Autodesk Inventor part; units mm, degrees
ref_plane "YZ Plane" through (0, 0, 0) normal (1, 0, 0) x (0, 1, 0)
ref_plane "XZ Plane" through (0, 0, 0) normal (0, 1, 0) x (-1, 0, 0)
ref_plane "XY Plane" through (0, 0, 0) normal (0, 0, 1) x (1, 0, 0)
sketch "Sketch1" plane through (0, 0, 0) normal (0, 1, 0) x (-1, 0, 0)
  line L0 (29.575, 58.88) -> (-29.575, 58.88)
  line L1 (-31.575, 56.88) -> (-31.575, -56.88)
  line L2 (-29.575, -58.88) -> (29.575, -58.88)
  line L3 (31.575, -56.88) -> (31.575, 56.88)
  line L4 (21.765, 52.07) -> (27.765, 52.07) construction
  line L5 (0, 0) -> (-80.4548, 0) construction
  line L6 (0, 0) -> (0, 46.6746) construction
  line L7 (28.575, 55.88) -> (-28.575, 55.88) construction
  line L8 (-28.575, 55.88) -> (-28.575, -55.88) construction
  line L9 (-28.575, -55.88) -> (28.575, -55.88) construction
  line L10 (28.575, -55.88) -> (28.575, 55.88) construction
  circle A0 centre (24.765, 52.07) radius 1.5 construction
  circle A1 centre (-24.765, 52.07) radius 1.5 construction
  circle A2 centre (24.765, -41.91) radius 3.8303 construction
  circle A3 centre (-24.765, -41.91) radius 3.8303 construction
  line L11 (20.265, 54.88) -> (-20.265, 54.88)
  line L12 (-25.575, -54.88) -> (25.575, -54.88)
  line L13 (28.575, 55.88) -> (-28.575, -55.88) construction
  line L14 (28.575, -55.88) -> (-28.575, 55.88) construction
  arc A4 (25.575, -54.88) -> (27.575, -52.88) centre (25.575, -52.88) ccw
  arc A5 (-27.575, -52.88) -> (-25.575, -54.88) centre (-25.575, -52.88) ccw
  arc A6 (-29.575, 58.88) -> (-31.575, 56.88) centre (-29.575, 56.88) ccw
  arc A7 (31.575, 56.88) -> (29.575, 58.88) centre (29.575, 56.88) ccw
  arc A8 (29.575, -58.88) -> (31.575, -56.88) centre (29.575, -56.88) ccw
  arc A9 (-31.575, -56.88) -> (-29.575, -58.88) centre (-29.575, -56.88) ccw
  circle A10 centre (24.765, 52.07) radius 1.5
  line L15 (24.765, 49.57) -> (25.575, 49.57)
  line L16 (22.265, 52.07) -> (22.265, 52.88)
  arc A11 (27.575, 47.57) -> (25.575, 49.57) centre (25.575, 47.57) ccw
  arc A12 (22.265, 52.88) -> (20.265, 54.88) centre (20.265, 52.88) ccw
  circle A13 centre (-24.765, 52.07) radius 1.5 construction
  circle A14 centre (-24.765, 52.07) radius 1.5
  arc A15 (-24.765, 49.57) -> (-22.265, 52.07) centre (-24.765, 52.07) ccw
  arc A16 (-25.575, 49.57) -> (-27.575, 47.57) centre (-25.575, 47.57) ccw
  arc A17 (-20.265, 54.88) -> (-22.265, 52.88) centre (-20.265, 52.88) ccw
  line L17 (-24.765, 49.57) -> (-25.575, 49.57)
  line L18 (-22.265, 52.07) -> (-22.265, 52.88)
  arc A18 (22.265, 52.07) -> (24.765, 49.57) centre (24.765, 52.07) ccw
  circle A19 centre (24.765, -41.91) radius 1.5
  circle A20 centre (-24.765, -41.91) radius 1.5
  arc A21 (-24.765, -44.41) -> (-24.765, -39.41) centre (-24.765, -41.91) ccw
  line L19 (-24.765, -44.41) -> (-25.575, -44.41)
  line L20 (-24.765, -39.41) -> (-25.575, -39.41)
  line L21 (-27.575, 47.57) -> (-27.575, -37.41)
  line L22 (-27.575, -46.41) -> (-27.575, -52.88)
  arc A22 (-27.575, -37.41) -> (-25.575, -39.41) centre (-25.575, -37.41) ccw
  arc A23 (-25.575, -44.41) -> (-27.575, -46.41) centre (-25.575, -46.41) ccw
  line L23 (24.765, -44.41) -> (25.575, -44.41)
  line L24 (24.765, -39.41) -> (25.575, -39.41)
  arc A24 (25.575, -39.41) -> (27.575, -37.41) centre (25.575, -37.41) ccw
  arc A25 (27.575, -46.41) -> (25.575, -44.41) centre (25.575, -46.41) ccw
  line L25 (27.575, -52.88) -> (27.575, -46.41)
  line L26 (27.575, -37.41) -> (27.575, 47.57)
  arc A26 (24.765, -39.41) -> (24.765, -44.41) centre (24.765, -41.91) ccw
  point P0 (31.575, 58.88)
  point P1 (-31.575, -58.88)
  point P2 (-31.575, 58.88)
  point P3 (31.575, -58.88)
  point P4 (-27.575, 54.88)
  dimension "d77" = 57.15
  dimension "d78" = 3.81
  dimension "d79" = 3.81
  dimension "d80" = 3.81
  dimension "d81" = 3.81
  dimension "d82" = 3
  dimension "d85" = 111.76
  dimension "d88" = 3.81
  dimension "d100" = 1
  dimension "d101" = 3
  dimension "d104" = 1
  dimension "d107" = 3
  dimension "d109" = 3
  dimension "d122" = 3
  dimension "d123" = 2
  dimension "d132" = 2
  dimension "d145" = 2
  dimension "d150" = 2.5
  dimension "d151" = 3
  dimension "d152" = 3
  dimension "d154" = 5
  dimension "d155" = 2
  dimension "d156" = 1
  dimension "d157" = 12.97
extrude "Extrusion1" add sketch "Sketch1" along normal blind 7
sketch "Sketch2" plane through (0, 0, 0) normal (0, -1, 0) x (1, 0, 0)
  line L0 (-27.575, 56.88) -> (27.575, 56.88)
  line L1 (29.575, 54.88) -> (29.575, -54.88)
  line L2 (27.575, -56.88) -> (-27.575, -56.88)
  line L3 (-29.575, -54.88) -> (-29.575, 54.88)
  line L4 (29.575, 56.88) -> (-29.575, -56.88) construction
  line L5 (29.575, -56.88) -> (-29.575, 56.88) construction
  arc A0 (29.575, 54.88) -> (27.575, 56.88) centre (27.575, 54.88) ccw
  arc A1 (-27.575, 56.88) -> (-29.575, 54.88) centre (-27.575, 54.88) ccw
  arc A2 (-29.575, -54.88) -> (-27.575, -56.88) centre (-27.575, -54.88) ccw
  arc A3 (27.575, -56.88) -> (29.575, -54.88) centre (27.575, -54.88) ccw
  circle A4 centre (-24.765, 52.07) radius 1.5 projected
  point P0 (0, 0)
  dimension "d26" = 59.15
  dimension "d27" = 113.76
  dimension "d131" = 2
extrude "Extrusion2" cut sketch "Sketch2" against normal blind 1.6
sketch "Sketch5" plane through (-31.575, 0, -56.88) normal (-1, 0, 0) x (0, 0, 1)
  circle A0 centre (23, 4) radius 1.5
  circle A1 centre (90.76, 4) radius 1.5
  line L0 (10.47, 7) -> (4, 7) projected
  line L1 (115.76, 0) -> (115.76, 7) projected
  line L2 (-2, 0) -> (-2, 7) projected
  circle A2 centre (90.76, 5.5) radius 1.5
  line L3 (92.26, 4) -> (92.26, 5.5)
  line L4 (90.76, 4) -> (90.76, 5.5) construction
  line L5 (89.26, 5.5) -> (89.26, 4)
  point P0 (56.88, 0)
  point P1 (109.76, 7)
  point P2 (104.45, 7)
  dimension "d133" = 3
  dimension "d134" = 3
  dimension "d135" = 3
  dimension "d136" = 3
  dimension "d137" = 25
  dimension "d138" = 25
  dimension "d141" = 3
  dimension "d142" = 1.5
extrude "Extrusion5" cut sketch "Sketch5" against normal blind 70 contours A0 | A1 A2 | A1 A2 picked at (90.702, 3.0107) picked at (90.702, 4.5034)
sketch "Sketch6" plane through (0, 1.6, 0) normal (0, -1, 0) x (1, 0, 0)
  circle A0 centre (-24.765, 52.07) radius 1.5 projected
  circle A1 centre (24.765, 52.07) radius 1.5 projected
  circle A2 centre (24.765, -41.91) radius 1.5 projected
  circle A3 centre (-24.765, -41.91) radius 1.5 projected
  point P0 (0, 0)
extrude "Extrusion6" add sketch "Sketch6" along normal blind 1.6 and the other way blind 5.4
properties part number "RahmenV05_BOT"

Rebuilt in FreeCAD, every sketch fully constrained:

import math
import FreeCAD as App
import Part
import Sketcher
Q = App.Units.Quantity

doc = App.newDocument("Part")
params = doc.addObject("Spreadsheet::Sheet", "Params")
for row, (alias, value) in enumerate([
    ("sketch1_diameter", "3 mm"),
    ("sketch1_radius", "2 mm"),
    ("sketch1_radius2", "2.5 mm"),
    ("sketch1_width", "59.15 mm"),
    ("sketch1_width2", "40.53 mm"),
    ("pad1_length", "7 mm"),
    ("sketch2_radius", "2 mm"),
    ("sketch2_diameter", "3 mm"),
    ("sketch2_height", "109.76 mm"),
    ("pocket1_length", "1.6 mm"),
    ("sketch3_diameter", "3 mm"),
    ("pocket2_length", "70 mm"),
    ("sketch4_diameter", "3 mm"),
    ("pad2_length", "1.6 mm"),
    ("pad2_length2", "5.4 mm"),
], start=1):
    params.set(f"A{row}", alias)
    params.set(f"B{row}", "=" + value)
    params.setAlias(f"B{row}", alias)

body = doc.addObject("PartDesign::Body", "Body")

# Sketch on XZ plane
sketch1 = body.newObject("Sketcher::SketchObject", "Sketch")
sketch1.AttachmentSupport = (doc.getObject("XZ_Plane"), [""])
sketch1.MapMode = "FlatFace"
sketch1.addGeometry([
    Part.ArcOfCircle(Part.Circle(App.Vector(-29.6, 56.9, 0), App.Vector(0, 0, 1), 2), math.radians(90), math.radians(180)),  # 0
    Part.LineSegment(App.Vector(-29.6, 58.9, 0), App.Vector(29.6, 58.9, 0)),  # 1
    Part.ArcOfCircle(Part.Circle(App.Vector(29.6, 56.9, 0), App.Vector(0, 0, 1), 2), math.radians(0), math.radians(90)),  # 2
    Part.LineSegment(App.Vector(31.6, 56.9, 0), App.Vector(31.6, -56.9, 0)),  # 3
    Part.ArcOfCircle(Part.Circle(App.Vector(29.6, -56.9, 0), App.Vector(0, 0, 1), 2), math.radians(-90), math.radians(0)),  # 4
    Part.LineSegment(App.Vector(29.6, -58.9, 0), App.Vector(-29.6, -58.9, 0)),  # 5
    Part.ArcOfCircle(Part.Circle(App.Vector(-29.6, -56.9, 0), App.Vector(0, 0, 1), 2), math.radians(180), math.radians(270)),  # 6
    Part.LineSegment(App.Vector(-31.6, -56.9, 0), App.Vector(-31.6, 56.9, 0)),  # 7
    Part.Circle(App.Vector(24.8, -41.9, 0), App.Vector(0, 0, 1), 1.5),  # 8
    Part.Circle(App.Vector(-24.8, -41.9, 0), App.Vector(0, 0, 1), 1.5),  # 9
    Part.Circle(App.Vector(24.8, 52.1, 0), App.Vector(0, 0, 1), 1.5),  # 10
    Part.LineSegment(App.Vector(20.3, 54.9, 0), App.Vector(-20.3, 54.9, 0)),  # 11
    Part.ArcOfCircle(Part.Circle(App.Vector(-20.3, 52.9, 0), App.Vector(0, 0, 1), 2), math.radians(90), math.radians(180)),  # 12
    Part.LineSegment(App.Vector(-22.3, 52.9, 0), App.Vector(-22.3, 52.1, 0)),  # 13
    Part.ArcOfCircle(Part.Circle(App.Vector(-24.8, 52.1, 0), App.Vector(0, 0, 1), 2.5), math.radians(-90), math.radians(0)),  # 14
    Part.LineSegment(App.Vector(-24.8, 49.6, 0), App.Vector(-25.6, 49.6, 0)),  # 15
    Part.ArcOfCircle(Part.Circle(App.Vector(-25.6, 47.6, 0), App.Vector(0, 0, 1), 2), math.radians(90), math.radians(180)),  # 16
    Part.LineSegment(App.Vector(-27.6, 47.6, 0), App.Vector(-27.6, -37.4, 0)),  # 17
    Part.ArcOfCircle(Part.Circle(App.Vector(-25.6, -37.4, 0), App.Vector(0, 0, 1), 2), math.radians(180), math.radians(270)),  # 18
    Part.LineSegment(App.Vector(-25.6, -39.4, 0), App.Vector(-24.8, -39.4, 0)),  # 19
    Part.ArcOfCircle(Part.Circle(App.Vector(-24.8, -41.9, 0), App.Vector(0, 0, 1), 2.5), math.radians(-90), math.radians(90)),  # 20
    Part.LineSegment(App.Vector(-24.8, -44.4, 0), App.Vector(-25.6, -44.4, 0)),  # 21
    Part.ArcOfCircle(Part.Circle(App.Vector(-25.6, -46.4, 0), App.Vector(0, 0, 1), 2), math.radians(90), math.radians(180)),  # 22
    Part.LineSegment(App.Vector(-27.6, -46.4, 0), App.Vector(-27.6, -52.9, 0)),  # 23
    Part.ArcOfCircle(Part.Circle(App.Vector(-25.6, -52.9, 0), App.Vector(0, 0, 1), 2), math.radians(180), math.radians(270)),  # 24
    Part.LineSegment(App.Vector(-25.6, -54.9, 0), App.Vector(25.6, -54.9, 0)),  # 25
    Part.ArcOfCircle(Part.Circle(App.Vector(25.6, -52.9, 0), App.Vector(0, 0, 1), 2), math.radians(-90), math.radians(0)),  # 26
    Part.LineSegment(App.Vector(27.6, -52.9, 0), App.Vector(27.6, -46.4, 0)),  # 27
    Part.ArcOfCircle(Part.Circle(App.Vector(25.6, -46.4, 0), App.Vector(0, 0, 1), 2), math.radians(0), math.radians(90)),  # 28
    Part.LineSegment(App.Vector(25.6, -44.4, 0), App.Vector(24.8, -44.4, 0)),  # 29
    Part.ArcOfCircle(Part.Circle(App.Vector(24.8, -41.9, 0), App.Vector(0, 0, 1), 2.5), math.radians(90), math.radians(270)),  # 30
    Part.LineSegment(App.Vector(24.8, -39.4, 0), App.Vector(25.6, -39.4, 0)),  # 31
    Part.ArcOfCircle(Part.Circle(App.Vector(25.6, -37.4, 0), App.Vector(0, 0, 1), 2), math.radians(-90), math.radians(0)),  # 32
    Part.LineSegment(App.Vector(27.6, -37.4, 0), App.Vector(27.6, 47.6, 0)),  # 33
    Part.ArcOfCircle(Part.Circle(App.Vector(25.6, 47.6, 0), App.Vector(0, 0, 1), 2), math.radians(0), math.radians(90)),  # 34
    Part.LineSegment(App.Vector(25.6, 49.6, 0), App.Vector(24.8, 49.6, 0)),  # 35
    Part.ArcOfCircle(Part.Circle(App.Vector(24.8, 52.1, 0), App.Vector(0, 0, 1), 2.5), math.radians(180), math.radians(270)),  # 36
    Part.LineSegment(App.Vector(22.3, 52.1, 0), App.Vector(22.3, 52.9, 0)),  # 37
    Part.ArcOfCircle(Part.Circle(App.Vector(20.3, 52.9, 0), App.Vector(0, 0, 1), 2), math.radians(0), math.radians(90)),  # 38
    Part.Circle(App.Vector(-24.8, 52.1, 0), App.Vector(0, 0, 1), 1.5),  # 39
], False)
sketch1.addConstraint([
    Sketcher.Constraint("Tangent", 0, 1, 1, 1),
    Sketcher.Constraint("Tangent", 1, 2, 2, 2),
    Sketcher.Constraint("Tangent", 2, 1, 3, 1),
    Sketcher.Constraint("Tangent", 3, 2, 4, 2),
    Sketcher.Constraint("Tangent", 4, 1, 5, 1),
    Sketcher.Constraint("Tangent", 5, 2, 6, 2),
    Sketcher.Constraint("Tangent", 6, 1, 7, 1),
    Sketcher.Constraint("Tangent", 7, 2, 0, 2),
    Sketcher.Constraint("Tangent", 11, 2, 12, 1),
    Sketcher.Constraint("Tangent", 12, 2, 13, 1),
    Sketcher.Constraint("Tangent", 13, 2, 14, 2),
    Sketcher.Constraint("Tangent", 14, 1, 15, 1),
    Sketcher.Constraint("Tangent", 15, 2, 16, 1),
    Sketcher.Constraint("Tangent", 16, 2, 17, 1),
    Sketcher.Constraint("Tangent", 17, 2, 18, 1),
    Sketcher.Constraint("Tangent", 18, 2, 19, 1),
    Sketcher.Constraint("Tangent", 19, 2, 20, 2),
    Sketcher.Constraint("Tangent", 20, 1, 21, 1),
    Sketcher.Constraint("Tangent", 21, 2, 22, 1),
    Sketcher.Constraint("Tangent", 22, 2, 23, 1),
    Sketcher.Constraint("Tangent", 23, 2, 24, 1),
    Sketcher.Constraint("Tangent", 24, 2, 25, 1),
    Sketcher.Constraint("Tangent", 25, 2, 26, 1),
    Sketcher.Constraint("Tangent", 26, 2, 27, 1),
    Sketcher.Constraint("Tangent", 27, 2, 28, 1),
    Sketcher.Constraint("Tangent", 28, 2, 29, 1),
    Sketcher.Constraint("Tangent", 29, 2, 30, 2),
    Sketcher.Constraint("Tangent", 30, 1, 31, 1),
    Sketcher.Constraint("Tangent", 31, 2, 32, 1),
    Sketcher.Constraint("Tangent", 32, 2, 33, 1),
    Sketcher.Constraint("Tangent", 33, 2, 34, 1),
    Sketcher.Constraint("Tangent", 34, 2, 35, 1),
    Sketcher.Constraint("Tangent", 35, 2, 36, 2),
    Sketcher.Constraint("Tangent", 36, 1, 37, 1),
    Sketcher.Constraint("Tangent", 37, 2, 38, 1),
    Sketcher.Constraint("Tangent", 38, 2, 11, 1),
    Sketcher.Constraint("Horizontal", 1),
    Sketcher.Constraint("Vertical", 3),
    Sketcher.Constraint("Horizontal", 5),
    Sketcher.Constraint("Vertical", 7),
    Sketcher.Constraint("Horizontal", 11),
    Sketcher.Constraint("Vertical", 13),
    Sketcher.Constraint("Horizontal", 15),
    Sketcher.Constraint("Vertical", 17),
    Sketcher.Constraint("Horizontal", 19),
    Sketcher.Constraint("Horizontal", 21),
    Sketcher.Constraint("Vertical", 23),
    Sketcher.Constraint("Horizontal", 25),
    Sketcher.Constraint("Vertical", 27),
    Sketcher.Constraint("Horizontal", 29),
    Sketcher.Constraint("Horizontal", 31),
    Sketcher.Constraint("Vertical", 33),
    Sketcher.Constraint("Horizontal", 35),
    Sketcher.Constraint("Vertical", 37),
    Sketcher.Constraint("Coincident", 20, 3, 9, 3),
    Sketcher.Constraint("Coincident", 30, 3, 8, 3),
    Sketcher.Constraint("Coincident", 36, 3, 10, 3),
    Sketcher.Constraint("Coincident", 39, 3, 14, 3),
    Sketcher.Constraint("Equal", 0, 2),
    Sketcher.Constraint("Equal", 2, 4),
    Sketcher.Constraint("Equal", 4, 6),
    Sketcher.Constraint("Equal", 8, 9),
    Sketcher.Constraint("Equal", 9, 10),
    Sketcher.Constraint("Equal", 6, 12),
    Sketcher.Constraint("Equal", 12, 16),
    Sketcher.Constraint("Equal", 16, 18),
    Sketcher.Constraint("Equal", 14, 20),
    Sketcher.Constraint("Equal", 18, 22),
    Sketcher.Constraint("Equal", 22, 24),
    Sketcher.Constraint("Equal", 24, 26),
    Sketcher.Constraint("Equal", 26, 28),
    Sketcher.Constraint("Equal", 20, 30),
    Sketcher.Constraint("Equal", 28, 32),
    Sketcher.Constraint("Equal", 32, 34),
    Sketcher.Constraint("Equal", 30, 36),
    Sketcher.Constraint("Equal", 34, 38),
    Sketcher.Constraint("Equal", 10, 39),
    Sketcher.Constraint("Symmetric", 0, 3, 4, 3, -1, 1),
    Sketcher.Constraint("Symmetric", 8, 3, 9, 3, -2),
    Sketcher.Constraint("Symmetric", 10, 3, 14, 3, -2),
    Sketcher.Constraint("Vertical", 8, 3, 10, 3),
    Sketcher.Constraint("Vertical", 18, 3, 22, 3),
    Sketcher.Constraint("Vertical", 28, 3, 32, 3),
    Sketcher.Constraint("Equal", 21, 29),
    Sketcher.Constraint("Equal", 35, 13),
    Sketcher.Constraint("Diameter", 8, Q("3 mm")),
    Sketcher.Constraint("Radius", 0, Q("2 mm")),
    Sketcher.Constraint("Radius", 14, Q("2.5 mm")),
    Sketcher.Constraint("DistanceY", 11, 2, 0, 3, Q("2 mm")),
    Sketcher.Constraint("DistanceX", 6, 3, 23, 2, Q("2 mm")),
    Sketcher.Constraint("DistanceY", 6, 3, 24, 2, Q("2 mm")),
    Sketcher.Constraint("DistanceX", 1, 1, 1, 2, Q("59.15 mm")),
    Sketcher.Constraint("DistanceX", 11, 2, 11, 1, Q("40.53 mm")),
    Sketcher.Constraint("DistanceY", 3, 2, 3, 1, Q("113.76 mm")),
    Sketcher.Constraint("DistanceY", 17, 2, 17, 1, Q("84.98 mm")),
])
sketch1.setExpression("Constraints[85]", "Params.sketch1_diameter")
sketch1.setExpression("Constraints[86]", "Params.sketch1_radius")
sketch1.setExpression("Constraints[87]", "Params.sketch1_radius2")
sketch1.setExpression("Constraints[91]", "Params.sketch1_width")
sketch1.setExpression("Constraints[92]", "Params.sketch1_width2")
pad1 = body.newObject("PartDesign::Pad", "Pad")
pad1.Profile = sketch1
pad1.setExpression("Length", "Params.pad1_length")
pad1.Reversed = True

# Sketch on XZ plane
sketch2 = body.newObject("Sketcher::SketchObject", "Sketch001")
sketch2.AttachmentSupport = (doc.getObject("XZ_Plane"), [""])
sketch2.MapMode = "FlatFace"
sketch2.addGeometry([
    Part.LineSegment(App.Vector(27.6, 56.9, 0), App.Vector(-27.6, 56.9, 0)),  # 0
    Part.ArcOfCircle(Part.Circle(App.Vector(-27.6, 54.9, 0), App.Vector(0, 0, 1), 2), math.radians(90), math.radians(180)),  # 1
    Part.LineSegment(App.Vector(-29.6, 54.9, 0), App.Vector(-29.6, -54.9, 0)),  # 2
    Part.ArcOfCircle(Part.Circle(App.Vector(-27.6, -54.9, 0), App.Vector(0, 0, 1), 2), math.radians(180), math.radians(270)),  # 3
    Part.LineSegment(App.Vector(-27.6, -56.9, 0), App.Vector(27.6, -56.9, 0)),  # 4
    Part.ArcOfCircle(Part.Circle(App.Vector(27.6, -54.9, 0), App.Vector(0, 0, 1), 2), math.radians(-90), math.radians(0)),  # 5
    Part.LineSegment(App.Vector(29.6, -54.9, 0), App.Vector(29.6, 54.9, 0)),  # 6
    Part.ArcOfCircle(Part.Circle(App.Vector(27.6, 54.9, 0), App.Vector(0, 0, 1), 2), math.radians(0), math.radians(90)),  # 7
    Part.Circle(App.Vector(-24.8, 52.1, 0), App.Vector(0, 0, 1), 1.5),  # 8
], False)
sketch2.addConstraint([
    Sketcher.Constraint("Tangent", 0, 2, 1, 1),
    Sketcher.Constraint("Tangent", 1, 2, 2, 1),
    Sketcher.Constraint("Tangent", 2, 2, 3, 1),
    Sketcher.Constraint("Tangent", 3, 2, 4, 1),
    Sketcher.Constraint("Tangent", 4, 2, 5, 1),
    Sketcher.Constraint("Tangent", 5, 2, 6, 1),
    Sketcher.Constraint("Tangent", 6, 2, 7, 1),
    Sketcher.Constraint("Tangent", 7, 2, 0, 1),
    Sketcher.Constraint("Horizontal", 0),
    Sketcher.Constraint("Vertical", 2),
    Sketcher.Constraint("Horizontal", 4),
    Sketcher.Constraint("Vertical", 6),
    Sketcher.Constraint("Equal", 1, 3),
    Sketcher.Constraint("Equal", 3, 5),
    Sketcher.Constraint("Equal", 5, 7),
    Sketcher.Constraint("Symmetric", 1, 3, 5, 3, -1, 1),
    Sketcher.Constraint("Radius", 1, Q("2 mm")),
    Sketcher.Constraint("Diameter", 8, Q("3 mm")),
    Sketcher.Constraint("DistanceX", 2, 2, 5, 2, Q("59.15 mm")),
    Sketcher.Constraint("DistanceY", 2, 2, 2, 1, Q("109.76 mm")),
    Sketcher.Constraint("DistanceY", -1, 1, 8, 3, Q("52.07 mm")),
    Sketcher.Constraint("DistanceX", 1, 3, 8, 3, Q("2.81 mm")),
])
sketch2.setExpression("Constraints[16]", "Params.sketch2_radius")
sketch2.setExpression("Constraints[17]", "Params.sketch2_diameter")
sketch2.setExpression("Constraints[19]", "Params.sketch2_height")
pocket1 = body.newObject("PartDesign::Pocket", "Pocket")
pocket1.Profile = sketch2
pocket1.setExpression("Length", "Params.pocket1_length")

# Sketch on YZ plane
sketch3 = body.newObject("Sketcher::SketchObject", "Sketch002")
sketch3.AttachmentSupport = (doc.getObject("YZ_Plane"), [""])
sketch3.MapMode = "FlatFace"
sketch3.AttachmentOffset = App.Placement(App.Vector(0, 0, -31.575), App.Rotation())
sketch3.addGeometry([
    Part.Circle(App.Vector(4, -33.9, 0), App.Vector(0, 0, 1), 1.5),
    Part.Circle(App.Vector(4, 33.9, 0), App.Vector(0, 0, 1), 1.5),
], False)
sketch3.addConstraint([
    Sketcher.Constraint("Equal", 0, 1),
    Sketcher.Constraint("Symmetric", 0, 3, 1, 3, -1),
    Sketcher.Constraint("Diameter", 0, Q("3 mm")),
    Sketcher.Constraint("DistanceX", -1, 1, 0, 3, Q("4 mm")),
    Sketcher.Constraint("DistanceY", 0, 3, -1, 1, Q("33.88 mm")),
])
sketch3.setExpression("Constraints[2]", "Params.sketch3_diameter")
pocket2 = body.newObject("PartDesign::Pocket", "Pocket001")
pocket2.Profile = sketch3
pocket2.setExpression("Length", "Params.pocket2_length")
pocket2.Reversed = True

# Sketch on XZ plane
sketch4 = body.newObject("Sketcher::SketchObject", "Sketch003")
sketch4.AttachmentSupport = (doc.getObject("XZ_Plane"), [""])
sketch4.MapMode = "FlatFace"
sketch4.AttachmentOffset = App.Placement(App.Vector(0, 0, -1.6), App.Rotation())
sketch4.addGeometry([
    Part.Circle(App.Vector(-24.8, 52.1, 0), App.Vector(0, 0, 1), 1.5),
    Part.Circle(App.Vector(24.8, 52.1, 0), App.Vector(0, 0, 1), 1.5),
    Part.Circle(App.Vector(24.8, -41.9, 0), App.Vector(0, 0, 1), 1.5),
    Part.Circle(App.Vector(-24.8, -41.9, 0), App.Vector(0, 0, 1), 1.5),
], False)
sketch4.addConstraint([
    Sketcher.Constraint("Equal", 0, 1),
    Sketcher.Constraint("Equal", 1, 2),
    Sketcher.Constraint("Equal", 2, 3),
    Sketcher.Constraint("Symmetric", 0, 3, 1, 3, -2),
    Sketcher.Constraint("Symmetric", 2, 3, 3, 3, -2),
    Sketcher.Constraint("Vertical", 1, 3, 2, 3),
    Sketcher.Constraint("Diameter", 0, Q("3 mm")),
    Sketcher.Constraint("DistanceY", -1, 1, 0, 3, Q("52.07 mm")),
    Sketcher.Constraint("DistanceY", 2, 3, -1, 1, Q("41.91 mm")),
    Sketcher.Constraint("DistanceX", 0, 3, 1, 3, Q("49.53 mm")),
])
sketch4.setExpression("Constraints[6]", "Params.sketch4_diameter")
pad2 = body.newObject("PartDesign::Pad", "Pad001")
pad2.Profile = sketch4
pad2.Type = "TwoLengths"
pad2.setExpression("Length", "Params.pad2_length")
pad2.setExpression("Length2", "Params.pad2_length2")

doc.recompute()
